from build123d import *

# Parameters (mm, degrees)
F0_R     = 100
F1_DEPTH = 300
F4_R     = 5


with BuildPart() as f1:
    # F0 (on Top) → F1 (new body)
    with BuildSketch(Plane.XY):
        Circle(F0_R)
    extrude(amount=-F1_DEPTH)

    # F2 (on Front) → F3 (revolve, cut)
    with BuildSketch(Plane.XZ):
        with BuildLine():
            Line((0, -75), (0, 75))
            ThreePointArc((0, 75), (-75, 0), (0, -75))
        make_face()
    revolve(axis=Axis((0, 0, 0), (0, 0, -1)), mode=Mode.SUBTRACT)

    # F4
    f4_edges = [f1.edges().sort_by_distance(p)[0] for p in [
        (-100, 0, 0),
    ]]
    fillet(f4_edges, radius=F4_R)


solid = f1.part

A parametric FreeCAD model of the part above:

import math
import FreeCAD as App
import Part
import Sketcher
from FreeCAD import Vector
Q = App.Units.Quantity


def edges_at(feature, points):
    """Names of the edges that pass closest to the given points."""
    edges = feature.Shape.Edges
    near = lambda p: min(range(len(edges)), key=lambda i: edges[i].distToShape(Part.Vertex(*p))[0])
    return sorted({f"Edge{near(p) + 1}" for p in points})

doc = App.newDocument("Part")
params = doc.addObject("Spreadsheet::Sheet", "Params")
for row, (alias, value) in enumerate([
    ("sketch1_diameter", "200 mm"),
    ("pad1_length", "300 mm"),
    ("sketch2_radius", "75 mm"),
    ("groove_angle", "360 deg"),
    ("fillet_radius", "5 mm"),
], start=1):
    params.set(f"A{row}", alias)
    params.set(f"B{row}", "=" + value)
    params.setAlias(f"B{row}", alias)

body = doc.addObject("PartDesign::Body", "Body")

# Sketch on XY plane
sketch1 = body.newObject("Sketcher::SketchObject", "Sketch")
sketch1.AttachmentSupport = (doc.getObject("XY_Plane"), [""])
sketch1.MapMode = "FlatFace"
sketch1.addGeometry(Part.Circle(Vector(0, 0, 0), Vector(0, 0, 1), 100), False)
sketch1.addConstraint([
    Sketcher.Constraint("Coincident", 0, 3, -1, 1),
    Sketcher.Constraint("Diameter", 0, Q("200 mm")),
])
sketch1.setExpression("Constraints[1]", "Params.sketch1_diameter")
pad1 = body.newObject("PartDesign::Pad", "Pad")
pad1.Profile = sketch1
pad1.setExpression("Length", "Params.pad1_length")
pad1.Reversed = True

# Sketch on XZ plane
sketch2 = body.newObject("Sketcher::SketchObject", "Sketch001")
sketch2.AttachmentSupport = (doc.getObject("XZ_Plane"), [""])
sketch2.MapMode = "FlatFace"
sketch2.addGeometry([
    Part.LineSegment(Vector(0, -75, 0), Vector(0, 75, 0)),
    Part.ArcOfCircle(Part.Circle(Vector(0, 0, 0), Vector(0, 0, 1), 75), math.radians(90), math.radians(270)),
], False)
sketch2.addConstraint([
    Sketcher.Constraint("Coincident", 0, 1, 1, 2),
    Sketcher.Constraint("Coincident", 1, 1, 0, 2),
    Sketcher.Constraint("Vertical", 0),
    Sketcher.Constraint("Coincident", 1, 3, -1, 1),
    Sketcher.Constraint("PointOnObject", 0, 1, -2),
    Sketcher.Constraint("Radius", 1, Q("75 mm")),
])
sketch2.setExpression("Constraints[5]", "Params.sketch2_radius")
groove = body.newObject("PartDesign::Groove", "Groove")
groove.Profile = sketch2
groove.ReferenceAxis = (sketch2, ["V_Axis"])
groove.setExpression("Angle", "Params.groove_angle")
doc.recompute()

fillet = body.newObject("PartDesign::Fillet", "Fillet")
fillet.Base = (groove, edges_at(groove, [(-100, 0, 0)]))
fillet.setExpression("Radius", "Params.fillet_radius")

doc.recompute()
